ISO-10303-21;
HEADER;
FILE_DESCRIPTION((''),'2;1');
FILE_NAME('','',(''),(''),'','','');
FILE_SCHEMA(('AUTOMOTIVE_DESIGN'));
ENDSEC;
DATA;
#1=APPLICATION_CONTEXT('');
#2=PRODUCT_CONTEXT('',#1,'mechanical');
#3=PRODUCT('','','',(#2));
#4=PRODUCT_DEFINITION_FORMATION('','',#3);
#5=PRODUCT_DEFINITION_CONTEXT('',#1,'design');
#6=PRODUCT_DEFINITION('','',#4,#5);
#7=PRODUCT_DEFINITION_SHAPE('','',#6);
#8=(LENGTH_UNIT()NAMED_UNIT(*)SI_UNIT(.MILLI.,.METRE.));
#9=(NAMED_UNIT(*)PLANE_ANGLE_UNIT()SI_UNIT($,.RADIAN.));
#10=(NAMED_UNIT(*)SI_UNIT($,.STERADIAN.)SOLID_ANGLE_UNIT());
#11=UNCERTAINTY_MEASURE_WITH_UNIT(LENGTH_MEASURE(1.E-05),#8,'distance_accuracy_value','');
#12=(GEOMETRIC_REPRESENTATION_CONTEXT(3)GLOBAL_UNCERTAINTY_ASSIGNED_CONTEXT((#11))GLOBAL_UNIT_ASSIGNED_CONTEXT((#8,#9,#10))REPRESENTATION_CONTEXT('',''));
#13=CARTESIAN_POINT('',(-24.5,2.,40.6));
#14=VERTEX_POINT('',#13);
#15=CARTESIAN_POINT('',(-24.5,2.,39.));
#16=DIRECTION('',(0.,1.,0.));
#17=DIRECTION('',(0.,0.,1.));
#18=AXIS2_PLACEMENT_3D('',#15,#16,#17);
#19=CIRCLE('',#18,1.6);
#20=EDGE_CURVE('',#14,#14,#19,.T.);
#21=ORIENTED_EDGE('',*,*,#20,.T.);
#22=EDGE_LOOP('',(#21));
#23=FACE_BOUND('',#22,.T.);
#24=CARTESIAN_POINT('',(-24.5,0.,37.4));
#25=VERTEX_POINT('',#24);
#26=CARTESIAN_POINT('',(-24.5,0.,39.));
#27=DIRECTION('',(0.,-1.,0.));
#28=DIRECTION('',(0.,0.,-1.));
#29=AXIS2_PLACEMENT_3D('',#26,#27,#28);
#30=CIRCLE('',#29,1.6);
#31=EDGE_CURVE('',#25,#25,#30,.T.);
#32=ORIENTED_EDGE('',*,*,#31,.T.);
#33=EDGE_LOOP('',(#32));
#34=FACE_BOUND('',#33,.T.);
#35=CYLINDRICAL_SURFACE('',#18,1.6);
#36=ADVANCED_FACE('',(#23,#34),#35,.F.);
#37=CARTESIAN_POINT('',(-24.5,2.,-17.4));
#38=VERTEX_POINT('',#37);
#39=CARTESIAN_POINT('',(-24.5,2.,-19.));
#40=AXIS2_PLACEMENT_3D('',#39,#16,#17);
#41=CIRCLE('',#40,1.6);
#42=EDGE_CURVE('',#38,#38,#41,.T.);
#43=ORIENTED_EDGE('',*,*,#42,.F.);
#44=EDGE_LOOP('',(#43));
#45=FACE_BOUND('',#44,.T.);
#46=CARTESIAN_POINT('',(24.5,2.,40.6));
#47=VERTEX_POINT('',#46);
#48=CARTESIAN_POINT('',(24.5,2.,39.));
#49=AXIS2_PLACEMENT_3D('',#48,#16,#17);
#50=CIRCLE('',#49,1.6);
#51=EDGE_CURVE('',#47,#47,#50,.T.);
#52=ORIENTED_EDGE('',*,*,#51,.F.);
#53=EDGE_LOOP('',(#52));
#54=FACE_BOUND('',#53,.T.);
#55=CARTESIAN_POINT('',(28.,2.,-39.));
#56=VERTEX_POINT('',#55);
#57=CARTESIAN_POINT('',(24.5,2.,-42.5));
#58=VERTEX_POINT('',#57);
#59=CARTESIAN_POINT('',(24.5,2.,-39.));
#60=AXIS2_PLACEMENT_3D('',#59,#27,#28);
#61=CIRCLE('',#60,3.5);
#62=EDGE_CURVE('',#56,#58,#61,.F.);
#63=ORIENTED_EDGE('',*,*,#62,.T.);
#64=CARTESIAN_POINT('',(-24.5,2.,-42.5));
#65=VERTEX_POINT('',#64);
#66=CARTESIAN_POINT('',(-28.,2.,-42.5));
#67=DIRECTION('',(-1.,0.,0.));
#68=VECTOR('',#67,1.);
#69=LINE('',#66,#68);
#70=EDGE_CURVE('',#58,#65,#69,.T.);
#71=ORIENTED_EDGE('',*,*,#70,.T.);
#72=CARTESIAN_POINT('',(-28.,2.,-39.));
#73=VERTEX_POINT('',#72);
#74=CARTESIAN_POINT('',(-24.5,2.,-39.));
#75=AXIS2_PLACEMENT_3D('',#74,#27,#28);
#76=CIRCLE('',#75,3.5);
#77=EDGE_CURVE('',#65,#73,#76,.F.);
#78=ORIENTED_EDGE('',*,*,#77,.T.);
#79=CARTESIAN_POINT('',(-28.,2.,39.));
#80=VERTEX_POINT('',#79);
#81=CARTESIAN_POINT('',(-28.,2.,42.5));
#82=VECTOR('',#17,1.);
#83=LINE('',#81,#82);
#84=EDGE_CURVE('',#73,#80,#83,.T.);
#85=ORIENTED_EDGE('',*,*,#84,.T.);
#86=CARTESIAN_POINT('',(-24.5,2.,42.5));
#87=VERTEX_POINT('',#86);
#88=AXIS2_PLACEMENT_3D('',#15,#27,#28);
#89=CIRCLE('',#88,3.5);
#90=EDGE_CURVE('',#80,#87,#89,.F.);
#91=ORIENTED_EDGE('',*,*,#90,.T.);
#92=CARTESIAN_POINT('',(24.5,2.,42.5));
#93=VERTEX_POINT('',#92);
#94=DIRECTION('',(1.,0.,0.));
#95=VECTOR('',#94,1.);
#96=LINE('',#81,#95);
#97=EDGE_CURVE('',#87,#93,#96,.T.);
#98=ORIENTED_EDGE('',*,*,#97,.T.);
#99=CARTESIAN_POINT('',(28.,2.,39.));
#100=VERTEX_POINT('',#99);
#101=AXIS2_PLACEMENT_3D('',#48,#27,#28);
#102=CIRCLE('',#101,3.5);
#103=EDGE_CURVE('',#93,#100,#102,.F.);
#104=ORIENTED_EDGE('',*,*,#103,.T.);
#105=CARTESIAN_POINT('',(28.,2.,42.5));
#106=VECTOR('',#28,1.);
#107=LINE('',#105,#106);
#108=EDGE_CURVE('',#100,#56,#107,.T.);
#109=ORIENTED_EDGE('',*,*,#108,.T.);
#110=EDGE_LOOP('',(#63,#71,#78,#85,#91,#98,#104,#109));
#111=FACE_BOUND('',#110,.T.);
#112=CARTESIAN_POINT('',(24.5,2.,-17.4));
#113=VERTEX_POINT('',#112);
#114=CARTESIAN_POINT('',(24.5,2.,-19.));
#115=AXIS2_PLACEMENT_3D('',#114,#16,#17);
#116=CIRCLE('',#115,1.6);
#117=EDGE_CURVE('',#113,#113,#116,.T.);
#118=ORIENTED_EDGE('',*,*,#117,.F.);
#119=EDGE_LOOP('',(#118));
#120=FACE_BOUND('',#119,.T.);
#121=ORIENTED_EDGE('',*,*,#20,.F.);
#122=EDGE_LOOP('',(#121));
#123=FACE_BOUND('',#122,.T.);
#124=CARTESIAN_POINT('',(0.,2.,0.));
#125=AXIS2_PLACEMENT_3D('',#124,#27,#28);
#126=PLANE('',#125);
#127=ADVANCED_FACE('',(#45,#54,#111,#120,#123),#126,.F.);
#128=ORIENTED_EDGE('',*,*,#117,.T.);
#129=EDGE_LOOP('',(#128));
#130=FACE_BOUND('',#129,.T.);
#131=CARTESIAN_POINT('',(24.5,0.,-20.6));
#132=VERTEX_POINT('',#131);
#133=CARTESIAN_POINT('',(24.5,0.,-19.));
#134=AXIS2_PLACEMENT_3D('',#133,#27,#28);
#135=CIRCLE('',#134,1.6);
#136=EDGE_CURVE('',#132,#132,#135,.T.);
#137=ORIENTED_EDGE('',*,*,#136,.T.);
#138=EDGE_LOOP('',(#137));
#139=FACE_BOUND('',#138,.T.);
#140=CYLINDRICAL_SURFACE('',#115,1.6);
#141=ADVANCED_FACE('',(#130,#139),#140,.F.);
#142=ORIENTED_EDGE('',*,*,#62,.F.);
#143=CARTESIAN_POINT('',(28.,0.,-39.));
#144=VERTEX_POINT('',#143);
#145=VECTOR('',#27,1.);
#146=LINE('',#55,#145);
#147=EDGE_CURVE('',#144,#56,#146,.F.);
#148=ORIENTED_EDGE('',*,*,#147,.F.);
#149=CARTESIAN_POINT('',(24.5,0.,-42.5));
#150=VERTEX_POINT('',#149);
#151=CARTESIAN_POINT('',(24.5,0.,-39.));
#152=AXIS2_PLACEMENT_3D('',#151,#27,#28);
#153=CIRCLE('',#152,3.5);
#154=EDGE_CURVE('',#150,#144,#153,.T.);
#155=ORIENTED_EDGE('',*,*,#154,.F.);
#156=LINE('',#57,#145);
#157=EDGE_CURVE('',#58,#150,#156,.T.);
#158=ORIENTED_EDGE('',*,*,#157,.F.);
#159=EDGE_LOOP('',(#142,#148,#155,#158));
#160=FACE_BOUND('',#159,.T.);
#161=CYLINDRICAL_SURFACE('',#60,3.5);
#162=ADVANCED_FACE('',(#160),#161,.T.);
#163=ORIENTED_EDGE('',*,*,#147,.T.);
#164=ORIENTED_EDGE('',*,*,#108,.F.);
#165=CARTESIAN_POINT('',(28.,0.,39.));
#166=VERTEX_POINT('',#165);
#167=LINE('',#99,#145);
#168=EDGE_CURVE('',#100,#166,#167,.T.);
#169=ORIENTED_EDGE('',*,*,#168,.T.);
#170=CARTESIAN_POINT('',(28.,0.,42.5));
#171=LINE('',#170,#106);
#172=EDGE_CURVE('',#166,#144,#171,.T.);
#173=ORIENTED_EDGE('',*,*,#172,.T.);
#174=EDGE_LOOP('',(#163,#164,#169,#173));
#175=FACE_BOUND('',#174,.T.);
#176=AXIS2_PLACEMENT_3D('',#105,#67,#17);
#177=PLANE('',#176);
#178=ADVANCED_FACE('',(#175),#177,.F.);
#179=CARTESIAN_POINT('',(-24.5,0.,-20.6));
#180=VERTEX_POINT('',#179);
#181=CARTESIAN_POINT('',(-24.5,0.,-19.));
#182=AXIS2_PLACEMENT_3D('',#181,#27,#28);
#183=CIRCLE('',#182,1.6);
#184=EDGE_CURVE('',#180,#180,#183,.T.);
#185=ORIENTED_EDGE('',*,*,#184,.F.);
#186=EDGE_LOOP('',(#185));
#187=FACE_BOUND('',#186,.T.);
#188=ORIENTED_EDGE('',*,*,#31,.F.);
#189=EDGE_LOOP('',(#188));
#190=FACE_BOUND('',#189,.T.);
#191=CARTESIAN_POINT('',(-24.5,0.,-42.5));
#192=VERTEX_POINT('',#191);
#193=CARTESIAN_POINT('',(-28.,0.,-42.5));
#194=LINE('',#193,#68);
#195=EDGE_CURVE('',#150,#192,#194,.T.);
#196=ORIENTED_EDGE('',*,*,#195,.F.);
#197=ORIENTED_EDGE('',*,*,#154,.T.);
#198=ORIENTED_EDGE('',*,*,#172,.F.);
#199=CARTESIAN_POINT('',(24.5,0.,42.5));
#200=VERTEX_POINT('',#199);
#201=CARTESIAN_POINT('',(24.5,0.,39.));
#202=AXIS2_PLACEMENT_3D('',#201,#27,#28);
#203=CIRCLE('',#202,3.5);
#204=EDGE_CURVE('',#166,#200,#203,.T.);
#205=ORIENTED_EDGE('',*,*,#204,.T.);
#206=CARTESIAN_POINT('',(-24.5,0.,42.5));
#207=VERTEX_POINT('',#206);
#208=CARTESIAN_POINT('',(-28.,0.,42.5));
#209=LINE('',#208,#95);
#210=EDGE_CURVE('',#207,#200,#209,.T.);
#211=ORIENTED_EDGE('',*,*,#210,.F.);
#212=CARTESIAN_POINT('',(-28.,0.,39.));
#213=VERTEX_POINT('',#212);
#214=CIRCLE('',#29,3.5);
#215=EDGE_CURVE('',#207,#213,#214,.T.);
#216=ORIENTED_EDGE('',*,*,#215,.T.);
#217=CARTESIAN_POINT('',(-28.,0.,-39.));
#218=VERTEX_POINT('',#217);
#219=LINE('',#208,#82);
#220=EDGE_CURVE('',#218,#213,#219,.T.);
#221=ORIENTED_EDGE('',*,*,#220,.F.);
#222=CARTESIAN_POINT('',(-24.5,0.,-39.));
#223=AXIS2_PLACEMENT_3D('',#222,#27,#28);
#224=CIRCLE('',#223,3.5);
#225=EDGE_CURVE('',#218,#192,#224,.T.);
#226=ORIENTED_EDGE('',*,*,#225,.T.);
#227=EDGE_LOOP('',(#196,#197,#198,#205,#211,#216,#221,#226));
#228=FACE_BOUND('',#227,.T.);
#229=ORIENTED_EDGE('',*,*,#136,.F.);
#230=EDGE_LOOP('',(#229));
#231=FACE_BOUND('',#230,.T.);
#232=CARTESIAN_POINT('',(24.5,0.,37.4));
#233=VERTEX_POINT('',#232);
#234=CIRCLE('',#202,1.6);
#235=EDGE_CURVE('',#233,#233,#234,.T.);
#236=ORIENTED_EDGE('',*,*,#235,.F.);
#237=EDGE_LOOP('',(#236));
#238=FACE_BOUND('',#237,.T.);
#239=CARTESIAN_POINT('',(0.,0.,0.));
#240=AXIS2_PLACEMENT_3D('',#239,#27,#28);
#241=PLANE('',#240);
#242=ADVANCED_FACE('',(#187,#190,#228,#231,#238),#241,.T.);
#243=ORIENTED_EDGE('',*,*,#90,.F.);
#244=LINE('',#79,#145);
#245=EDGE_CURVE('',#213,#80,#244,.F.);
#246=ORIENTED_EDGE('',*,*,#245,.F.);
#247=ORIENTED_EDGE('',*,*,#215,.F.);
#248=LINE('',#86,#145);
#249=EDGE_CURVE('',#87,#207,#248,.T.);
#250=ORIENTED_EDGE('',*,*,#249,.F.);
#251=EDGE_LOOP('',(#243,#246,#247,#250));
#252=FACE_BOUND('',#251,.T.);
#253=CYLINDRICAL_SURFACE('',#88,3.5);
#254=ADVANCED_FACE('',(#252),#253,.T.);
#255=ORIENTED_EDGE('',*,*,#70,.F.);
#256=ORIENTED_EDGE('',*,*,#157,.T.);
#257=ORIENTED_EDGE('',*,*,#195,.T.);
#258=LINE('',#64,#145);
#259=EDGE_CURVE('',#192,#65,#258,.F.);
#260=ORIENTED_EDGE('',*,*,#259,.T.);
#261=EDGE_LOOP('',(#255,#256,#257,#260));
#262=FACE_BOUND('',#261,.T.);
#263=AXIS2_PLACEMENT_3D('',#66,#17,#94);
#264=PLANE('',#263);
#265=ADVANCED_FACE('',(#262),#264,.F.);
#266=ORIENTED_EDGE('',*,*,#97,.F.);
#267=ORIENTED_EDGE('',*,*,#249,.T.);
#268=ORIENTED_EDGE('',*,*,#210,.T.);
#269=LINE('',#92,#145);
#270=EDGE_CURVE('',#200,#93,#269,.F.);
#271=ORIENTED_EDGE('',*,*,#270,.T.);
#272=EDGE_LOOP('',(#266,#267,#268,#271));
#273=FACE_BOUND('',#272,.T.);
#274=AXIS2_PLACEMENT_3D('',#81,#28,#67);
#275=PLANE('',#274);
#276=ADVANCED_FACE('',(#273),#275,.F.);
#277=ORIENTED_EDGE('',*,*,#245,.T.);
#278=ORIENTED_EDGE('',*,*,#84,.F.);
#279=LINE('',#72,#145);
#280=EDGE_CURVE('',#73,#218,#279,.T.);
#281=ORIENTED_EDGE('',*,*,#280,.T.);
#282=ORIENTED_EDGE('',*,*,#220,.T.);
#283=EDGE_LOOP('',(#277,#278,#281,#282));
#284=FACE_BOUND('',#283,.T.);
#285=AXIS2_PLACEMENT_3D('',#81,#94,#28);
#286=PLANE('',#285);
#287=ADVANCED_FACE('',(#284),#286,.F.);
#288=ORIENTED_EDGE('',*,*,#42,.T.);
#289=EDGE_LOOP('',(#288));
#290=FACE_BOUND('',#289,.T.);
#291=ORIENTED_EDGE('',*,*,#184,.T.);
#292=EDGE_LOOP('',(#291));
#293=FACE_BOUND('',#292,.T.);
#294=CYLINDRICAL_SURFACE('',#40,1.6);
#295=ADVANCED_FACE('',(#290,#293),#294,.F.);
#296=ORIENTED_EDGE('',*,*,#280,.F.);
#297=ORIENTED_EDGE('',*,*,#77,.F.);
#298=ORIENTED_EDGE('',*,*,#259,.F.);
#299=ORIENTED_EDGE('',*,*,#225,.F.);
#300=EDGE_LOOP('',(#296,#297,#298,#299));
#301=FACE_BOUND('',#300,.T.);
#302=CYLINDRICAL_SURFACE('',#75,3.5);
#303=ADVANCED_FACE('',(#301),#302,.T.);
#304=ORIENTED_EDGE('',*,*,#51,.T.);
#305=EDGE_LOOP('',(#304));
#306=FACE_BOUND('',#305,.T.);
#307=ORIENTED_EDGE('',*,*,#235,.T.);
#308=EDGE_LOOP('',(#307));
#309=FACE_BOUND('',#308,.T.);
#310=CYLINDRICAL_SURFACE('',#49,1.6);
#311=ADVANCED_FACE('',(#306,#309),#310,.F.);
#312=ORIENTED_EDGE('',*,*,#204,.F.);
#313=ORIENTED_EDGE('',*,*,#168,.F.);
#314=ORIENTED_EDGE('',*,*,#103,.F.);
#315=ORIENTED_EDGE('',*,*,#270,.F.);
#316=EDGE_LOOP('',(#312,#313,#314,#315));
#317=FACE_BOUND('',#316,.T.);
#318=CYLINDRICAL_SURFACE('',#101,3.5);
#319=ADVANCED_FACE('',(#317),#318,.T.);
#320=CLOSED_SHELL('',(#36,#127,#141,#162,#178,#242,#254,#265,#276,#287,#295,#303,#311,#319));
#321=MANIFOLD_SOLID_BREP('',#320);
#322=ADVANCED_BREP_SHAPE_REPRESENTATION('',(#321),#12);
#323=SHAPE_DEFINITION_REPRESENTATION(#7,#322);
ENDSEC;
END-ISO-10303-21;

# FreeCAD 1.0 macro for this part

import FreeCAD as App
import Part
import Sketcher
from FreeCAD import Vector


def edges_at(feature, points):
    """Names of the edges that pass closest to the given points."""
    edges = feature.Shape.Edges
    near = lambda p: min(range(len(edges)), key=lambda i: edges[i].distToShape(Part.Vertex(*p))[0])
    return sorted({f"Edge{near(p) + 1}" for p in points})


def add_polygon(sketch, points):
    """Adds a closed chain of lines whose ends are joined by coincident constraints."""
    first, n = sketch.GeometryCount, len(points)
    for a, b in zip(points, points[1:] + points[:1]):
        sketch.addGeometry(Part.LineSegment(App.Vector(*a, 0), App.Vector(*b, 0)), False)
    for i in range(n):
        sketch.addConstraint(Sketcher.Constraint("Coincident", first + i, 2, first + (i + 1) % n, 1))

doc = App.newDocument("Part")
params = doc.addObject("Spreadsheet::Sheet", "Params")
for row, (alias, value) in enumerate([
    ("sketch1_width", "56 mm"),
    ("sketch1_height", "85 mm"),
    ("pad1_length", "2 mm"),
    ("sketch2_diameter", "3.2 mm"),
    ("hole_diameter", "3.2 mm"),
    ("hole_depth", "2 mm"),
    ("fillet_radius", "3.5 mm"),
], start=1):
    params.set(f"A{row}", alias)
    params.set(f"B{row}", "=" + value)
    params.setAlias(f"B{row}", alias)

body = doc.addObject("PartDesign::Body", "Body")

# Sketch on XZ plane
sketch1 = doc.addObject("Sketcher::SketchObject", "Sketch")
body.addObject(sketch1)
sketch1.AttachmentSupport = (doc.XZ_Plane, [""])
sketch1.MapMode = "FlatFace"
add_polygon(sketch1, [(-28, -42), (-28, 42), (28, 42), (28, -42)])  # lines 0-3
sketch1.addConstraint(Sketcher.Constraint("Vertical", 0))
sketch1.addConstraint(Sketcher.Constraint("Horizontal", 1))
sketch1.addConstraint(Sketcher.Constraint("Vertical", 2))
sketch1.addConstraint(Sketcher.Constraint("Horizontal", 3))
sketch1.addConstraint(Sketcher.Constraint("Symmetric", 0, 2, 2, 2, -1, 1))
sketch1.addConstraint(Sketcher.Constraint("DistanceX", 1, 1, 1, 2, 56.0))
sketch1.addConstraint(Sketcher.Constraint("DistanceY", 0, 1, 0, 2, 85.0))
sketch1.setExpression("Constraints[9]", "Params.sketch1_width")
sketch1.setExpression("Constraints[10]", "Params.sketch1_height")
pad1 = doc.addObject("PartDesign::Pad", "Pad")
body.addObject(pad1)
pad1.Profile = sketch1
pad1.setExpression("Length", "Params.pad1_length")
pad1.Reversed = True

# Sketch on XZ plane
sketch2 = doc.addObject("Sketcher::SketchObject", "Sketch001")
body.addObject(sketch2)
sketch2.AttachmentSupport = (doc.XZ_Plane, [""])
sketch2.MapMode = "FlatFace"
sketch2.AttachmentOffset = App.Placement(Vector(0, 0, -2), App.Rotation())
sketch2.addGeometry(Part.Circle(Vector(-24.5, -19, 0), Vector(0, 0, 1), 1.6), False)
sketch2.addGeometry(Part.Circle(Vector(24.5, 39, 0), Vector(0, 0, 1), 1.6), False)
sketch2.addGeometry(Part.Circle(Vector(-24.5, 39, 0), Vector(0, 0, 1), 1.6), False)
sketch2.addGeometry(Part.Circle(Vector(24.5, -19, 0), Vector(0, 0, 1), 1.6), False)
sketch2.addConstraint(Sketcher.Constraint("Equal", 0, 1))
sketch2.addConstraint(Sketcher.Constraint("Equal", 1, 2))
sketch2.addConstraint(Sketcher.Constraint("Equal", 2, 3))
sketch2.addConstraint(Sketcher.Constraint("Symmetric", 1, 3, 2, 3, -2))
sketch2.addConstraint(Sketcher.Constraint("Symmetric", 0, 3, 3, 3, -2))
sketch2.addConstraint(Sketcher.Constraint("Vertical", 0, 3, 2, 3))
sketch2.addConstraint(Sketcher.Constraint("Diameter", 0, 3.2))
sketch2.addConstraint(Sketcher.Constraint("DistanceY", 0, 3, -1, 1, 19.0))
sketch2.addConstraint(Sketcher.Constraint("DistanceY", -1, 1, 1, 3, 39.0))
sketch2.addConstraint(Sketcher.Constraint("DistanceX", 0, 3, 1, 3, 49.0))
sketch2.setExpression("Constraints[6]", "Params.sketch2_diameter")
doc.recompute()
hole = doc.addObject("PartDesign::Hole", "Hole")
body.addObject(hole)
hole.Profile = sketch2
hole.ThreadType = "None"
hole.setExpression("Diameter", "Params.hole_diameter")
hole.DepthType = "Dimension"
hole.setExpression("Depth", "Params.hole_depth")
hole.DrillPoint = "Flat"
hole.Reversed = True
doc.recompute()

fillet = doc.addObject("PartDesign::Fillet", "Fillet")
body.addObject(fillet)
fillet.Base = (hole, edges_at(hole, [
    (28, 1, 42.5),
    (-28, 1, 42.5),
    (-28, 1, -42.5),
    (28, 1, -42.5),
]))
fillet.setExpression("Radius", "Params.fillet_radius")

doc.recompute()
